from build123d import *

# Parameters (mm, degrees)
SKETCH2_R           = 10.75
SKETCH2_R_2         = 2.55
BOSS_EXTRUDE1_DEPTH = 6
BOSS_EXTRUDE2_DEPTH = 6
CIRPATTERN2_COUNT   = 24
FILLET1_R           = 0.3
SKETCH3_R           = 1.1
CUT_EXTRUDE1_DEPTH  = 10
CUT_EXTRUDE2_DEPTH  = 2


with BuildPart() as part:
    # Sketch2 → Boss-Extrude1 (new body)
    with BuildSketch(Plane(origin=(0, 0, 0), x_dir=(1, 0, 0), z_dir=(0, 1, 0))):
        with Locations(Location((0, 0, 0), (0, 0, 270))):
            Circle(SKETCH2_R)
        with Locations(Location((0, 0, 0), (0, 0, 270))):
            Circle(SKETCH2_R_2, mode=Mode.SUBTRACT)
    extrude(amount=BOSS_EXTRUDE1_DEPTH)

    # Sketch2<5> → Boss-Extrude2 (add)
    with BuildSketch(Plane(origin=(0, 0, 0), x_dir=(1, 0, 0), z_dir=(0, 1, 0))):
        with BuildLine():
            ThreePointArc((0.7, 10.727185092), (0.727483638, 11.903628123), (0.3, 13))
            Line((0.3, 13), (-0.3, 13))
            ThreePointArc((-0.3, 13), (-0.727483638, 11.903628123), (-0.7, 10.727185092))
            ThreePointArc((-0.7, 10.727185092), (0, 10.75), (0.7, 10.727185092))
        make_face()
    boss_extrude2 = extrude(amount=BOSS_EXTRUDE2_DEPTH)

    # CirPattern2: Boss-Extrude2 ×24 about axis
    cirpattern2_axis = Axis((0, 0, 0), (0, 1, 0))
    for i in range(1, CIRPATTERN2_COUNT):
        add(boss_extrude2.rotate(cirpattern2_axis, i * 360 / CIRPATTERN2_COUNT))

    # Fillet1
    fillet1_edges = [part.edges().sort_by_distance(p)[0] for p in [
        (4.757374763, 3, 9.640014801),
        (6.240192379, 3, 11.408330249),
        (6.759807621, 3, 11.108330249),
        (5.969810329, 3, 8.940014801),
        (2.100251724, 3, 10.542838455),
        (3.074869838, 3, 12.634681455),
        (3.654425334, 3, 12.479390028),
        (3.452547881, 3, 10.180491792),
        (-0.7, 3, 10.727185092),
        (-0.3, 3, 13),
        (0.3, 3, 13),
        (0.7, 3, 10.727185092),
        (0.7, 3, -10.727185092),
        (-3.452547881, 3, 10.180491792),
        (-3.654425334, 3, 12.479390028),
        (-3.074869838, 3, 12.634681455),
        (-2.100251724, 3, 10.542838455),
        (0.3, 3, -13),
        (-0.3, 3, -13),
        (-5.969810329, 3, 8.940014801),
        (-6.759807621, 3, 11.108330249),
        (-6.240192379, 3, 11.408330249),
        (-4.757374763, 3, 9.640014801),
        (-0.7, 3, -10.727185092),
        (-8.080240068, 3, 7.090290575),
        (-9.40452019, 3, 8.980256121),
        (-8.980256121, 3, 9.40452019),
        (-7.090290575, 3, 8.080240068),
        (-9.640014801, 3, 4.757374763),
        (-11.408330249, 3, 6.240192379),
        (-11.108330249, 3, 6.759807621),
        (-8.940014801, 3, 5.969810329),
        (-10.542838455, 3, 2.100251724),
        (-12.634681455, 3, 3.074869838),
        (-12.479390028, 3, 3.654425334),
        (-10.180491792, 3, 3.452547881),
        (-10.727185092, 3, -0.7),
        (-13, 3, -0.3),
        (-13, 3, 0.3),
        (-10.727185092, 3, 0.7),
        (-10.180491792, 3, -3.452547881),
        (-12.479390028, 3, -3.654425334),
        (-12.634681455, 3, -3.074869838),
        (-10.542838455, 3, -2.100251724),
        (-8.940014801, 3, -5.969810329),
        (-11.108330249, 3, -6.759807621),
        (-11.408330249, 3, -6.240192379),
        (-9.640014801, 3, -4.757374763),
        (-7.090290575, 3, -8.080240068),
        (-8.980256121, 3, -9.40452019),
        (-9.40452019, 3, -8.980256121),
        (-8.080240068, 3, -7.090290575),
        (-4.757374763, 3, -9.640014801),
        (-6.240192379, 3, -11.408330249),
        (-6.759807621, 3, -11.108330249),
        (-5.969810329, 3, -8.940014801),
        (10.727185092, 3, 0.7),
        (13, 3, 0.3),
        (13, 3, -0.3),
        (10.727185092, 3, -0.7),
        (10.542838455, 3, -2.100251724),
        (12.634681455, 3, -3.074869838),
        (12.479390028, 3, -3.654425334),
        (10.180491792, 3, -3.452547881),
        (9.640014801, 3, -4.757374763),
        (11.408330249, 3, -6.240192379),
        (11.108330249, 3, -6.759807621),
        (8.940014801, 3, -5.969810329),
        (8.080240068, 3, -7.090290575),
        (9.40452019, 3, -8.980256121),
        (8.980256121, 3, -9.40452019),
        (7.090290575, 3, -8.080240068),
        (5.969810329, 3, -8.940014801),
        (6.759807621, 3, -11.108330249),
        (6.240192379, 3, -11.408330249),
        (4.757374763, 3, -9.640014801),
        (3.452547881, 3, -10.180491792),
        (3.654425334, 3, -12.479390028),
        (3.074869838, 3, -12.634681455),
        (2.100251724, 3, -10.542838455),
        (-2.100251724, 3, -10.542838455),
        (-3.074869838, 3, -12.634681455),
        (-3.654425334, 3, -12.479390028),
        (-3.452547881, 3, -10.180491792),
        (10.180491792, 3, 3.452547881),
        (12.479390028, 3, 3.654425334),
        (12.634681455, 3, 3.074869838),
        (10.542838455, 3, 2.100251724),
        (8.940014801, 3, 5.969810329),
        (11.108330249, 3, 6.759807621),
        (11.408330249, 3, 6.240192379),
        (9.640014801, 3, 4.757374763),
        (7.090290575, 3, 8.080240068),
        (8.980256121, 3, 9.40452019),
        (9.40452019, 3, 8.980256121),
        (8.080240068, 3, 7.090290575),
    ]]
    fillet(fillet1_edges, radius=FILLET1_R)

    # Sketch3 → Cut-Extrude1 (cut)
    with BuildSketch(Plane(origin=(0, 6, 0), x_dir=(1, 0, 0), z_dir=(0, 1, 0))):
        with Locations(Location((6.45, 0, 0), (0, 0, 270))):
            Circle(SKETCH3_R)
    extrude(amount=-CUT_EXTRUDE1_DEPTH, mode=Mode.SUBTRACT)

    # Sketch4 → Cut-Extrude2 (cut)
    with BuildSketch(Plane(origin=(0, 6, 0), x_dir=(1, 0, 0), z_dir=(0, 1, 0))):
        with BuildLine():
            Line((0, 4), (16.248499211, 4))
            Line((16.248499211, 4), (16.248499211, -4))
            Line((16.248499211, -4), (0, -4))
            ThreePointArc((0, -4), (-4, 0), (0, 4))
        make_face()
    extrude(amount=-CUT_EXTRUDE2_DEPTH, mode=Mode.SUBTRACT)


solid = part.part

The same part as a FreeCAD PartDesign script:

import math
import FreeCAD as App
import Part
import Sketcher
Q = App.Units.Quantity


def edges_at(feature, points):
    """Names of the edges that pass closest to the given points."""
    edges = feature.Shape.Edges
    near = lambda p: min(range(len(edges)), key=lambda i: edges[i].distToShape(Part.Vertex(*p))[0])
    return sorted({f"Edge{near(p) + 1}" for p in points})

doc = App.newDocument("Part")
body = doc.addObject("PartDesign::Body", "Body")

# Sketch on XZ plane
sketch1 = body.newObject("Sketcher::SketchObject", "Sketch")
sketch1.AttachmentSupport = (doc.getObject("XZ_Plane"), [""])
sketch1.MapMode = "FlatFace"
sketch1.addGeometry([
    Part.Circle(App.Vector(0, 0, 0), App.Vector(0, 0, 1), 10.8),
    Part.Circle(App.Vector(0, 0, 0), App.Vector(0, 0, 1), 2.5),
], False)
sketch1.addConstraint([
    Sketcher.Constraint("Coincident", 0, 3, -1, 1),
    Sketcher.Constraint("Coincident", 1, 3, -1, 1),
    Sketcher.Constraint("Diameter", 0, Q("21.5 mm")),
    Sketcher.Constraint("Diameter", 1, Q("5.1 mm")),
])
pad1 = body.newObject("PartDesign::Pad", "Pad")
pad1.Profile = sketch1
pad1.Length = 6
pad1.Reversed = True

# Sketch on XZ plane
sketch2 = body.newObject("Sketcher::SketchObject", "Sketch001")
sketch2.AttachmentSupport = (doc.getObject("XZ_Plane"), [""])
sketch2.MapMode = "FlatFace"
sketch2.addGeometry([
    Part.ArcOfCircle(Part.Circle(App.Vector(-2.2, -11.4, 0), App.Vector(0, 0, 1), 3), math.radians(-33), math.radians(13)),
    Part.LineSegment(App.Vector(0.3, -13, 0), App.Vector(-0.3, -13, 0)),
    Part.ArcOfCircle(Part.Circle(App.Vector(2.2, -11.4, 0), App.Vector(0, 0, 1), 3), math.radians(167), math.radians(213)),
    Part.ArcOfCircle(Part.Circle(App.Vector(0, 0, 0), App.Vector(0, 0, 1), 10.7), math.radians(-93.73), math.radians(-86.27)),
], False)
sketch2.addConstraint([
    Sketcher.Constraint("Coincident", 0, 1, 1, 1),
    Sketcher.Constraint("Coincident", 1, 2, 2, 2),
    Sketcher.Constraint("Coincident", 2, 1, 3, 1),
    Sketcher.Constraint("Coincident", 3, 2, 0, 2),
    Sketcher.Constraint("Horizontal", 1),
    Sketcher.Constraint("Coincident", 3, 3, -1, 1),
    Sketcher.Constraint("Equal", 0, 2),
    Sketcher.Constraint("Symmetric", 0, 3, 2, 3, -2),
    Sketcher.Constraint("Radius", 3, Q("10.75 mm")),
    Sketcher.Constraint("DistanceX", 1, 2, 1, 1, Q("0.6 mm")),
    Sketcher.Constraint("DistanceY", 0, 1, -1, 1, Q("13 mm")),
    Sketcher.Constraint("DistanceX", 2, 1, 0, 1, Q("1 mm")),
    Sketcher.Constraint("Radius", 0, Q("2.997608 mm")),
])
pad2 = body.newObject("PartDesign::Pad", "Pad001")
pad2.Profile = sketch2
pad2.Length = 6
pad2.Reversed = True
doc.recompute()

polarpattern = body.newObject("PartDesign::PolarPattern", "PolarPattern")
polarpattern.Originals = [pad2]
polarpattern.Axis = (doc.getObject("Y_Axis"), [""])
polarpattern.Angle = 360
polarpattern.Occurrences = 24
body.Tip = polarpattern
doc.recompute()

fillet = body.newObject("PartDesign::Fillet", "Fillet")
fillet.Base = (polarpattern, edges_at(polarpattern, [
    (4.757, 3, 9.64),
    (6.24, 3, 11.408),
    (6.76, 3, 11.108),
    (5.97, 3, 8.94),
    (2.1, 3, 10.543),
    (3.075, 3, 12.635),
    (3.654, 3, 12.479),
    (3.453, 3, 10.18),
    (-0.7, 3, 10.727),
    (-0.3, 3, 13),
    (0.3, 3, 13),
    (0.7, 3, 10.727),
    (0.7, 3, -10.727),
    (-3.453, 3, 10.18),
    (-3.654, 3, 12.479),
    (-3.075, 3, 12.635),
    (-2.1, 3, 10.543),
    (0.3, 3, -13),
    (-0.3, 3, -13),
    (-5.97, 3, 8.94),
    (-6.76, 3, 11.108),
    (-6.24, 3, 11.408),
    (-4.757, 3, 9.64),
    (-0.7, 3, -10.727),
    (-8.08, 3, 7.09),
    (-9.405, 3, 8.98),
    (-8.98, 3, 9.405),
    (-7.09, 3, 8.08),
    (-9.64, 3, 4.757),
    (-11.408, 3, 6.24),
    (-11.108, 3, 6.76),
    (-8.94, 3, 5.97),
    (-10.543, 3, 2.1),
    (-12.635, 3, 3.075),
    (-12.479, 3, 3.654),
    (-10.18, 3, 3.453),
    (-10.727, 3, -0.7),
    (-13, 3, -0.3),
    (-13, 3, 0.3),
    (-10.727, 3, 0.7),
    (-10.18, 3, -3.453),
    (-12.479, 3, -3.654),
    (-12.635, 3, -3.075),
    (-10.543, 3, -2.1),
    (-8.94, 3, -5.97),
    (-11.108, 3, -6.76),
    (-11.408, 3, -6.24),
    (-9.64, 3, -4.757),
    (-7.09, 3, -8.08),
    (-8.98, 3, -9.405),
    (-9.405, 3, -8.98),
    (-8.08, 3, -7.09),
    (-4.757, 3, -9.64),
    (-6.24, 3, -11.408),
    (-6.76, 3, -11.108),
    (-5.97, 3, -8.94),
    (10.727, 3, 0.7),
    (13, 3, 0.3),
    (13, 3, -0.3),
    (10.727, 3, -0.7),
    (10.543, 3, -2.1),
    (12.635, 3, -3.075),
    (12.479, 3, -3.654),
    (10.18, 3, -3.453),
    (9.64, 3, -4.757),
    (11.408, 3, -6.24),
    (11.108, 3, -6.76),
    (8.94, 3, -5.97),
    (8.08, 3, -7.09),
    (9.405, 3, -8.98),
    (8.98, 3, -9.405),
    (7.09, 3, -8.08),
    (5.97, 3, -8.94),
    (6.76, 3, -11.108),
    (6.24, 3, -11.408),
    (4.757, 3, -9.64),
    (3.453, 3, -10.18),
    (3.654, 3, -12.479),
    (3.075, 3, -12.635),
    (2.1, 3, -10.543),
    (-2.1, 3, -10.543),
    (-3.075, 3, -12.635),
    (-3.654, 3, -12.479),
    (-3.453, 3, -10.18),
    (10.18, 3, 3.453),
    (12.479, 3, 3.654),
    (12.635, 3, 3.075),
    (10.543, 3, 2.1),
    (8.94, 3, 5.97),
    (11.108, 3, 6.76),
    (11.408, 3, 6.24),
    (9.64, 3, 4.757),
    (7.09, 3, 8.08),
    (8.98, 3, 9.405),
    (9.405, 3, 8.98),
    (8.08, 3, 7.09),
]))
fillet.Radius = 0.3

# Sketch on XZ plane
sketch3 = body.newObject("Sketcher::SketchObject", "Sketch002")
sketch3.AttachmentSupport = (doc.getObject("XZ_Plane"), [""])
sketch3.MapMode = "FlatFace"
sketch3.AttachmentOffset = App.Placement(App.Vector(0, 0, -6), App.Rotation())
sketch3.addGeometry(Part.Circle(App.Vector(6.5, 0, 0), App.Vector(0, 0, 1), 1.1), False)
sketch3.addConstraint([
    Sketcher.Constraint("PointOnObject", 0, 3, -1),
    Sketcher.Constraint("Diameter", 0, Q("2.2 mm")),
    Sketcher.Constraint("DistanceX", -1, 1, 0, 3, Q("6.45 mm")),
])
pocket1 = body.newObject("PartDesign::Pocket", "Pocket")
pocket1.Profile = sketch3
pocket1.Length = 10
pocket1.Reversed = True

# Sketch on XZ plane
sketch4 = body.newObject("Sketcher::SketchObject", "Sketch003")
sketch4.AttachmentSupport = (doc.getObject("XZ_Plane"), [""])
sketch4.MapMode = "FlatFace"
sketch4.AttachmentOffset = App.Placement(App.Vector(0, 0, -6), App.Rotation())
sketch4.addGeometry([
    Part.LineSegment(App.Vector(16.2, -4, 0), App.Vector(0, -4, 0)),
    Part.ArcOfCircle(Part.Circle(App.Vector(0, 0, 0), App.Vector(0, 0, 1), 4), math.radians(90), math.radians(270)),
    Part.LineSegment(App.Vector(0, 4, 0), App.Vector(16.2, 4, 0)),
    Part.LineSegment(App.Vector(16.2, 4, 0), App.Vector(16.2, -4, 0)),
], False)
sketch4.addConstraint([
    Sketcher.Constraint("Tangent", 0, 2, 1, 2),
    Sketcher.Constraint("Tangent", 1, 1, 2, 1),
    Sketcher.Constraint("Coincident", 2, 2, 3, 1),
    Sketcher.Constraint("Coincident", 3, 2, 0, 1),
    Sketcher.Constraint("Horizontal", 0),
    Sketcher.Constraint("Horizontal", 2),
    Sketcher.Constraint("Vertical", 3),
    Sketcher.Constraint("Coincident", 1, 3, -1, 1),
    Sketcher.Constraint("Radius", 1, Q("4 mm")),
    Sketcher.Constraint("DistanceX", 0, 2, 0, 1, Q("16.248499 mm")),
])
pocket2 = body.newObject("PartDesign::Pocket", "Pocket001")
pocket2.Profile = sketch4
pocket2.Length = 2
pocket2.Reversed = True

doc.recompute()
